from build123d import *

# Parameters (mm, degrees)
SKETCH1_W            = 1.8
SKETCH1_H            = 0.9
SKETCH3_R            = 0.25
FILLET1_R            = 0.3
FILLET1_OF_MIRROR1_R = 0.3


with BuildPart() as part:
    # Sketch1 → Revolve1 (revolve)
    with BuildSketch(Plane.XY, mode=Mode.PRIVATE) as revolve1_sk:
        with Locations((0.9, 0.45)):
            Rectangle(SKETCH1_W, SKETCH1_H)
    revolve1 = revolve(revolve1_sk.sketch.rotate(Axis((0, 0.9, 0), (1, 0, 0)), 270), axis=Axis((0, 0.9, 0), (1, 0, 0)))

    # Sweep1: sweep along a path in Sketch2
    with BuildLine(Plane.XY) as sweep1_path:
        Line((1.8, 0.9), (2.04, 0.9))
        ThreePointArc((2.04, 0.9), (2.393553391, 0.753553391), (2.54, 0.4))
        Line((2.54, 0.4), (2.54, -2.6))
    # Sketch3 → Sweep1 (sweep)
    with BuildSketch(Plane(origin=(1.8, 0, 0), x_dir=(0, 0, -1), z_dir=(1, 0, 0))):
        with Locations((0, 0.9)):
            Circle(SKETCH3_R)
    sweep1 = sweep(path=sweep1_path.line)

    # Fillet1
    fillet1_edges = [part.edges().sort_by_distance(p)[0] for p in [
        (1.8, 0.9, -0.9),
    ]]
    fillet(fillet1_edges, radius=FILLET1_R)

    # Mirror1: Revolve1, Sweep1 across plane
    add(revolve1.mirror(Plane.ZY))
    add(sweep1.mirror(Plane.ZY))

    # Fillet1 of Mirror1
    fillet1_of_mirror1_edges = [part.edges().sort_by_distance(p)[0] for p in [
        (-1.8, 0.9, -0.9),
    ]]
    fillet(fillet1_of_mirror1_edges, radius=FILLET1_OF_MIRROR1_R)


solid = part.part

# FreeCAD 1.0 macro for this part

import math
import FreeCAD as App
import Part
import Sketcher
Q = App.Units.Quantity


def edges_at(feature, points):
    """Names of the edges that pass closest to the given points."""
    edges = feature.Shape.Edges
    near = lambda p: min(range(len(edges)), key=lambda i: edges[i].distToShape(Part.Vertex(*p))[0])
    return sorted({f"Edge{near(p) + 1}" for p in points})

doc = App.newDocument("Part")
body = doc.addObject("PartDesign::Body", "Body")

# Sketch on XY plane
sketch1 = body.newObject("Sketcher::SketchObject", "Sketch")
sketch1.AttachmentSupport = (doc.getObject("XY_Plane"), [""])
sketch1.MapMode = "FlatFace"
sketch1.addGeometry([
    Part.LineSegment(App.Vector(0, 0.9, 0), App.Vector(0, 0, 0)),
    Part.LineSegment(App.Vector(0, 0, 0), App.Vector(1.8, 0, 0)),
    Part.LineSegment(App.Vector(1.8, 0, 0), App.Vector(1.8, 0.9, 0)),
    Part.LineSegment(App.Vector(1.8, 0.9, 0), App.Vector(0, 0.9, 0)),
], False)
sketch1.addGeometry(Part.LineSegment(App.Vector(0, 0.9, 0), App.Vector(1.8, 0.9, 0)), True)  # axis
sketch1.addConstraint([
    Sketcher.Constraint("Coincident", 0, 2, 1, 1),
    Sketcher.Constraint("Coincident", 1, 2, 2, 1),
    Sketcher.Constraint("Coincident", 2, 2, 3, 1),
    Sketcher.Constraint("Coincident", 3, 2, 0, 1),
    Sketcher.Constraint("Vertical", 0),
    Sketcher.Constraint("Horizontal", 1),
    Sketcher.Constraint("Vertical", 2),
    Sketcher.Constraint("Horizontal", 3),
    Sketcher.Constraint("Horizontal", 4),
    Sketcher.Constraint("Coincident", 0, 2, -1, 1),
    Sketcher.Constraint("Coincident", 4, 1, 3, 2),
    Sketcher.Constraint("Vertical", 1, 2, 4, 2),
    Sketcher.Constraint("DistanceX", 1, 1, 1, 2, Q("1.8 mm")),
    Sketcher.Constraint("DistanceY", 0, 2, 0, 1, Q("0.9 mm")),
])
revolution = body.newObject("PartDesign::Revolution", "Revolution")
revolution.Profile = sketch1
revolution.ReferenceAxis = (sketch1, ["Axis0"])
revolution.Angle = 360

# Sketch on YZ plane
sketch2 = body.newObject("Sketcher::SketchObject", "Sketch001")
sketch2.AttachmentSupport = (doc.getObject("YZ_Plane"), [""])
sketch2.MapMode = "FlatFace"
sketch2.AttachmentOffset = App.Placement(App.Vector(0, 0, 1.8), App.Rotation())
sketch2.addGeometry(Part.Circle(App.Vector(0.9, 0, 0), App.Vector(0, 0, 1), 0.25), False)
sketch2.addConstraint([
    Sketcher.Constraint("PointOnObject", 0, 3, -1),
    Sketcher.Constraint("Diameter", 0, Q("0.5 mm")),
    Sketcher.Constraint("DistanceX", -1, 1, 0, 3, Q("0.9 mm")),
])

# Sketch on XY plane
sketch3 = body.newObject("Sketcher::SketchObject", "Sketch002")
sketch3.AttachmentSupport = (doc.getObject("XY_Plane"), [""])
sketch3.MapMode = "FlatFace"
sketch3.addGeometry([
    Part.LineSegment(App.Vector(1.8, 0.9, 0), App.Vector(2.04, 0.9, 0)),
    Part.ArcOfCircle(Part.Circle(App.Vector(2.04, 0.4, 0), App.Vector(0, 0, 1), 0.5), math.radians(0), math.radians(90)),
    Part.LineSegment(App.Vector(2.54, 0.4, 0), App.Vector(2.54, -2.6, 0)),
], False)
sketch3.addConstraint([
    Sketcher.Constraint("Tangent", 0, 2, 1, 2),
    Sketcher.Constraint("Tangent", 1, 1, 2, 1),
    Sketcher.Constraint("Horizontal", 0),
    Sketcher.Constraint("Vertical", 2),
    Sketcher.Constraint("Radius", 1, Q("0.5 mm")),
    Sketcher.Constraint("DistanceY", 2, 2, 2, 1, Q("3 mm")),
    Sketcher.Constraint("DistanceX", 0, 1, 0, 2, Q("0.24 mm")),
    Sketcher.Constraint("DistanceY", -1, 1, 1, 3, Q("0.4 mm")),
    Sketcher.Constraint("DistanceX", -1, 1, 0, 1, Q("1.8 mm")),
])
doc.recompute()

additivepipe = body.newObject("PartDesign::AdditivePipe", "AdditivePipe")
additivepipe.Profile = sketch2
additivepipe.Spine = (sketch3, ["Edge1", "Edge2", "Edge3"])
doc.recompute()

fillet = body.newObject("PartDesign::Fillet", "Fillet")
fillet.Base = (additivepipe, edges_at(additivepipe, [(1.8, 0.9, -0.9)]))
fillet.Radius = 0.3
doc.recompute()

mirrored = body.newObject("PartDesign::Mirrored", "Mirrored")
mirrored.Originals = [revolution, additivepipe]
mirrored.MirrorPlane = (doc.getObject("YZ_Plane"), [""])
body.Tip = mirrored
doc.recompute()

fillet2 = body.newObject("PartDesign::Fillet", "Fillet001")
fillet2.Base = (mirrored, edges_at(mirrored, [(-1.8, 0.9, -0.9)]))
fillet2.Radius = 0.3

doc.recompute()
